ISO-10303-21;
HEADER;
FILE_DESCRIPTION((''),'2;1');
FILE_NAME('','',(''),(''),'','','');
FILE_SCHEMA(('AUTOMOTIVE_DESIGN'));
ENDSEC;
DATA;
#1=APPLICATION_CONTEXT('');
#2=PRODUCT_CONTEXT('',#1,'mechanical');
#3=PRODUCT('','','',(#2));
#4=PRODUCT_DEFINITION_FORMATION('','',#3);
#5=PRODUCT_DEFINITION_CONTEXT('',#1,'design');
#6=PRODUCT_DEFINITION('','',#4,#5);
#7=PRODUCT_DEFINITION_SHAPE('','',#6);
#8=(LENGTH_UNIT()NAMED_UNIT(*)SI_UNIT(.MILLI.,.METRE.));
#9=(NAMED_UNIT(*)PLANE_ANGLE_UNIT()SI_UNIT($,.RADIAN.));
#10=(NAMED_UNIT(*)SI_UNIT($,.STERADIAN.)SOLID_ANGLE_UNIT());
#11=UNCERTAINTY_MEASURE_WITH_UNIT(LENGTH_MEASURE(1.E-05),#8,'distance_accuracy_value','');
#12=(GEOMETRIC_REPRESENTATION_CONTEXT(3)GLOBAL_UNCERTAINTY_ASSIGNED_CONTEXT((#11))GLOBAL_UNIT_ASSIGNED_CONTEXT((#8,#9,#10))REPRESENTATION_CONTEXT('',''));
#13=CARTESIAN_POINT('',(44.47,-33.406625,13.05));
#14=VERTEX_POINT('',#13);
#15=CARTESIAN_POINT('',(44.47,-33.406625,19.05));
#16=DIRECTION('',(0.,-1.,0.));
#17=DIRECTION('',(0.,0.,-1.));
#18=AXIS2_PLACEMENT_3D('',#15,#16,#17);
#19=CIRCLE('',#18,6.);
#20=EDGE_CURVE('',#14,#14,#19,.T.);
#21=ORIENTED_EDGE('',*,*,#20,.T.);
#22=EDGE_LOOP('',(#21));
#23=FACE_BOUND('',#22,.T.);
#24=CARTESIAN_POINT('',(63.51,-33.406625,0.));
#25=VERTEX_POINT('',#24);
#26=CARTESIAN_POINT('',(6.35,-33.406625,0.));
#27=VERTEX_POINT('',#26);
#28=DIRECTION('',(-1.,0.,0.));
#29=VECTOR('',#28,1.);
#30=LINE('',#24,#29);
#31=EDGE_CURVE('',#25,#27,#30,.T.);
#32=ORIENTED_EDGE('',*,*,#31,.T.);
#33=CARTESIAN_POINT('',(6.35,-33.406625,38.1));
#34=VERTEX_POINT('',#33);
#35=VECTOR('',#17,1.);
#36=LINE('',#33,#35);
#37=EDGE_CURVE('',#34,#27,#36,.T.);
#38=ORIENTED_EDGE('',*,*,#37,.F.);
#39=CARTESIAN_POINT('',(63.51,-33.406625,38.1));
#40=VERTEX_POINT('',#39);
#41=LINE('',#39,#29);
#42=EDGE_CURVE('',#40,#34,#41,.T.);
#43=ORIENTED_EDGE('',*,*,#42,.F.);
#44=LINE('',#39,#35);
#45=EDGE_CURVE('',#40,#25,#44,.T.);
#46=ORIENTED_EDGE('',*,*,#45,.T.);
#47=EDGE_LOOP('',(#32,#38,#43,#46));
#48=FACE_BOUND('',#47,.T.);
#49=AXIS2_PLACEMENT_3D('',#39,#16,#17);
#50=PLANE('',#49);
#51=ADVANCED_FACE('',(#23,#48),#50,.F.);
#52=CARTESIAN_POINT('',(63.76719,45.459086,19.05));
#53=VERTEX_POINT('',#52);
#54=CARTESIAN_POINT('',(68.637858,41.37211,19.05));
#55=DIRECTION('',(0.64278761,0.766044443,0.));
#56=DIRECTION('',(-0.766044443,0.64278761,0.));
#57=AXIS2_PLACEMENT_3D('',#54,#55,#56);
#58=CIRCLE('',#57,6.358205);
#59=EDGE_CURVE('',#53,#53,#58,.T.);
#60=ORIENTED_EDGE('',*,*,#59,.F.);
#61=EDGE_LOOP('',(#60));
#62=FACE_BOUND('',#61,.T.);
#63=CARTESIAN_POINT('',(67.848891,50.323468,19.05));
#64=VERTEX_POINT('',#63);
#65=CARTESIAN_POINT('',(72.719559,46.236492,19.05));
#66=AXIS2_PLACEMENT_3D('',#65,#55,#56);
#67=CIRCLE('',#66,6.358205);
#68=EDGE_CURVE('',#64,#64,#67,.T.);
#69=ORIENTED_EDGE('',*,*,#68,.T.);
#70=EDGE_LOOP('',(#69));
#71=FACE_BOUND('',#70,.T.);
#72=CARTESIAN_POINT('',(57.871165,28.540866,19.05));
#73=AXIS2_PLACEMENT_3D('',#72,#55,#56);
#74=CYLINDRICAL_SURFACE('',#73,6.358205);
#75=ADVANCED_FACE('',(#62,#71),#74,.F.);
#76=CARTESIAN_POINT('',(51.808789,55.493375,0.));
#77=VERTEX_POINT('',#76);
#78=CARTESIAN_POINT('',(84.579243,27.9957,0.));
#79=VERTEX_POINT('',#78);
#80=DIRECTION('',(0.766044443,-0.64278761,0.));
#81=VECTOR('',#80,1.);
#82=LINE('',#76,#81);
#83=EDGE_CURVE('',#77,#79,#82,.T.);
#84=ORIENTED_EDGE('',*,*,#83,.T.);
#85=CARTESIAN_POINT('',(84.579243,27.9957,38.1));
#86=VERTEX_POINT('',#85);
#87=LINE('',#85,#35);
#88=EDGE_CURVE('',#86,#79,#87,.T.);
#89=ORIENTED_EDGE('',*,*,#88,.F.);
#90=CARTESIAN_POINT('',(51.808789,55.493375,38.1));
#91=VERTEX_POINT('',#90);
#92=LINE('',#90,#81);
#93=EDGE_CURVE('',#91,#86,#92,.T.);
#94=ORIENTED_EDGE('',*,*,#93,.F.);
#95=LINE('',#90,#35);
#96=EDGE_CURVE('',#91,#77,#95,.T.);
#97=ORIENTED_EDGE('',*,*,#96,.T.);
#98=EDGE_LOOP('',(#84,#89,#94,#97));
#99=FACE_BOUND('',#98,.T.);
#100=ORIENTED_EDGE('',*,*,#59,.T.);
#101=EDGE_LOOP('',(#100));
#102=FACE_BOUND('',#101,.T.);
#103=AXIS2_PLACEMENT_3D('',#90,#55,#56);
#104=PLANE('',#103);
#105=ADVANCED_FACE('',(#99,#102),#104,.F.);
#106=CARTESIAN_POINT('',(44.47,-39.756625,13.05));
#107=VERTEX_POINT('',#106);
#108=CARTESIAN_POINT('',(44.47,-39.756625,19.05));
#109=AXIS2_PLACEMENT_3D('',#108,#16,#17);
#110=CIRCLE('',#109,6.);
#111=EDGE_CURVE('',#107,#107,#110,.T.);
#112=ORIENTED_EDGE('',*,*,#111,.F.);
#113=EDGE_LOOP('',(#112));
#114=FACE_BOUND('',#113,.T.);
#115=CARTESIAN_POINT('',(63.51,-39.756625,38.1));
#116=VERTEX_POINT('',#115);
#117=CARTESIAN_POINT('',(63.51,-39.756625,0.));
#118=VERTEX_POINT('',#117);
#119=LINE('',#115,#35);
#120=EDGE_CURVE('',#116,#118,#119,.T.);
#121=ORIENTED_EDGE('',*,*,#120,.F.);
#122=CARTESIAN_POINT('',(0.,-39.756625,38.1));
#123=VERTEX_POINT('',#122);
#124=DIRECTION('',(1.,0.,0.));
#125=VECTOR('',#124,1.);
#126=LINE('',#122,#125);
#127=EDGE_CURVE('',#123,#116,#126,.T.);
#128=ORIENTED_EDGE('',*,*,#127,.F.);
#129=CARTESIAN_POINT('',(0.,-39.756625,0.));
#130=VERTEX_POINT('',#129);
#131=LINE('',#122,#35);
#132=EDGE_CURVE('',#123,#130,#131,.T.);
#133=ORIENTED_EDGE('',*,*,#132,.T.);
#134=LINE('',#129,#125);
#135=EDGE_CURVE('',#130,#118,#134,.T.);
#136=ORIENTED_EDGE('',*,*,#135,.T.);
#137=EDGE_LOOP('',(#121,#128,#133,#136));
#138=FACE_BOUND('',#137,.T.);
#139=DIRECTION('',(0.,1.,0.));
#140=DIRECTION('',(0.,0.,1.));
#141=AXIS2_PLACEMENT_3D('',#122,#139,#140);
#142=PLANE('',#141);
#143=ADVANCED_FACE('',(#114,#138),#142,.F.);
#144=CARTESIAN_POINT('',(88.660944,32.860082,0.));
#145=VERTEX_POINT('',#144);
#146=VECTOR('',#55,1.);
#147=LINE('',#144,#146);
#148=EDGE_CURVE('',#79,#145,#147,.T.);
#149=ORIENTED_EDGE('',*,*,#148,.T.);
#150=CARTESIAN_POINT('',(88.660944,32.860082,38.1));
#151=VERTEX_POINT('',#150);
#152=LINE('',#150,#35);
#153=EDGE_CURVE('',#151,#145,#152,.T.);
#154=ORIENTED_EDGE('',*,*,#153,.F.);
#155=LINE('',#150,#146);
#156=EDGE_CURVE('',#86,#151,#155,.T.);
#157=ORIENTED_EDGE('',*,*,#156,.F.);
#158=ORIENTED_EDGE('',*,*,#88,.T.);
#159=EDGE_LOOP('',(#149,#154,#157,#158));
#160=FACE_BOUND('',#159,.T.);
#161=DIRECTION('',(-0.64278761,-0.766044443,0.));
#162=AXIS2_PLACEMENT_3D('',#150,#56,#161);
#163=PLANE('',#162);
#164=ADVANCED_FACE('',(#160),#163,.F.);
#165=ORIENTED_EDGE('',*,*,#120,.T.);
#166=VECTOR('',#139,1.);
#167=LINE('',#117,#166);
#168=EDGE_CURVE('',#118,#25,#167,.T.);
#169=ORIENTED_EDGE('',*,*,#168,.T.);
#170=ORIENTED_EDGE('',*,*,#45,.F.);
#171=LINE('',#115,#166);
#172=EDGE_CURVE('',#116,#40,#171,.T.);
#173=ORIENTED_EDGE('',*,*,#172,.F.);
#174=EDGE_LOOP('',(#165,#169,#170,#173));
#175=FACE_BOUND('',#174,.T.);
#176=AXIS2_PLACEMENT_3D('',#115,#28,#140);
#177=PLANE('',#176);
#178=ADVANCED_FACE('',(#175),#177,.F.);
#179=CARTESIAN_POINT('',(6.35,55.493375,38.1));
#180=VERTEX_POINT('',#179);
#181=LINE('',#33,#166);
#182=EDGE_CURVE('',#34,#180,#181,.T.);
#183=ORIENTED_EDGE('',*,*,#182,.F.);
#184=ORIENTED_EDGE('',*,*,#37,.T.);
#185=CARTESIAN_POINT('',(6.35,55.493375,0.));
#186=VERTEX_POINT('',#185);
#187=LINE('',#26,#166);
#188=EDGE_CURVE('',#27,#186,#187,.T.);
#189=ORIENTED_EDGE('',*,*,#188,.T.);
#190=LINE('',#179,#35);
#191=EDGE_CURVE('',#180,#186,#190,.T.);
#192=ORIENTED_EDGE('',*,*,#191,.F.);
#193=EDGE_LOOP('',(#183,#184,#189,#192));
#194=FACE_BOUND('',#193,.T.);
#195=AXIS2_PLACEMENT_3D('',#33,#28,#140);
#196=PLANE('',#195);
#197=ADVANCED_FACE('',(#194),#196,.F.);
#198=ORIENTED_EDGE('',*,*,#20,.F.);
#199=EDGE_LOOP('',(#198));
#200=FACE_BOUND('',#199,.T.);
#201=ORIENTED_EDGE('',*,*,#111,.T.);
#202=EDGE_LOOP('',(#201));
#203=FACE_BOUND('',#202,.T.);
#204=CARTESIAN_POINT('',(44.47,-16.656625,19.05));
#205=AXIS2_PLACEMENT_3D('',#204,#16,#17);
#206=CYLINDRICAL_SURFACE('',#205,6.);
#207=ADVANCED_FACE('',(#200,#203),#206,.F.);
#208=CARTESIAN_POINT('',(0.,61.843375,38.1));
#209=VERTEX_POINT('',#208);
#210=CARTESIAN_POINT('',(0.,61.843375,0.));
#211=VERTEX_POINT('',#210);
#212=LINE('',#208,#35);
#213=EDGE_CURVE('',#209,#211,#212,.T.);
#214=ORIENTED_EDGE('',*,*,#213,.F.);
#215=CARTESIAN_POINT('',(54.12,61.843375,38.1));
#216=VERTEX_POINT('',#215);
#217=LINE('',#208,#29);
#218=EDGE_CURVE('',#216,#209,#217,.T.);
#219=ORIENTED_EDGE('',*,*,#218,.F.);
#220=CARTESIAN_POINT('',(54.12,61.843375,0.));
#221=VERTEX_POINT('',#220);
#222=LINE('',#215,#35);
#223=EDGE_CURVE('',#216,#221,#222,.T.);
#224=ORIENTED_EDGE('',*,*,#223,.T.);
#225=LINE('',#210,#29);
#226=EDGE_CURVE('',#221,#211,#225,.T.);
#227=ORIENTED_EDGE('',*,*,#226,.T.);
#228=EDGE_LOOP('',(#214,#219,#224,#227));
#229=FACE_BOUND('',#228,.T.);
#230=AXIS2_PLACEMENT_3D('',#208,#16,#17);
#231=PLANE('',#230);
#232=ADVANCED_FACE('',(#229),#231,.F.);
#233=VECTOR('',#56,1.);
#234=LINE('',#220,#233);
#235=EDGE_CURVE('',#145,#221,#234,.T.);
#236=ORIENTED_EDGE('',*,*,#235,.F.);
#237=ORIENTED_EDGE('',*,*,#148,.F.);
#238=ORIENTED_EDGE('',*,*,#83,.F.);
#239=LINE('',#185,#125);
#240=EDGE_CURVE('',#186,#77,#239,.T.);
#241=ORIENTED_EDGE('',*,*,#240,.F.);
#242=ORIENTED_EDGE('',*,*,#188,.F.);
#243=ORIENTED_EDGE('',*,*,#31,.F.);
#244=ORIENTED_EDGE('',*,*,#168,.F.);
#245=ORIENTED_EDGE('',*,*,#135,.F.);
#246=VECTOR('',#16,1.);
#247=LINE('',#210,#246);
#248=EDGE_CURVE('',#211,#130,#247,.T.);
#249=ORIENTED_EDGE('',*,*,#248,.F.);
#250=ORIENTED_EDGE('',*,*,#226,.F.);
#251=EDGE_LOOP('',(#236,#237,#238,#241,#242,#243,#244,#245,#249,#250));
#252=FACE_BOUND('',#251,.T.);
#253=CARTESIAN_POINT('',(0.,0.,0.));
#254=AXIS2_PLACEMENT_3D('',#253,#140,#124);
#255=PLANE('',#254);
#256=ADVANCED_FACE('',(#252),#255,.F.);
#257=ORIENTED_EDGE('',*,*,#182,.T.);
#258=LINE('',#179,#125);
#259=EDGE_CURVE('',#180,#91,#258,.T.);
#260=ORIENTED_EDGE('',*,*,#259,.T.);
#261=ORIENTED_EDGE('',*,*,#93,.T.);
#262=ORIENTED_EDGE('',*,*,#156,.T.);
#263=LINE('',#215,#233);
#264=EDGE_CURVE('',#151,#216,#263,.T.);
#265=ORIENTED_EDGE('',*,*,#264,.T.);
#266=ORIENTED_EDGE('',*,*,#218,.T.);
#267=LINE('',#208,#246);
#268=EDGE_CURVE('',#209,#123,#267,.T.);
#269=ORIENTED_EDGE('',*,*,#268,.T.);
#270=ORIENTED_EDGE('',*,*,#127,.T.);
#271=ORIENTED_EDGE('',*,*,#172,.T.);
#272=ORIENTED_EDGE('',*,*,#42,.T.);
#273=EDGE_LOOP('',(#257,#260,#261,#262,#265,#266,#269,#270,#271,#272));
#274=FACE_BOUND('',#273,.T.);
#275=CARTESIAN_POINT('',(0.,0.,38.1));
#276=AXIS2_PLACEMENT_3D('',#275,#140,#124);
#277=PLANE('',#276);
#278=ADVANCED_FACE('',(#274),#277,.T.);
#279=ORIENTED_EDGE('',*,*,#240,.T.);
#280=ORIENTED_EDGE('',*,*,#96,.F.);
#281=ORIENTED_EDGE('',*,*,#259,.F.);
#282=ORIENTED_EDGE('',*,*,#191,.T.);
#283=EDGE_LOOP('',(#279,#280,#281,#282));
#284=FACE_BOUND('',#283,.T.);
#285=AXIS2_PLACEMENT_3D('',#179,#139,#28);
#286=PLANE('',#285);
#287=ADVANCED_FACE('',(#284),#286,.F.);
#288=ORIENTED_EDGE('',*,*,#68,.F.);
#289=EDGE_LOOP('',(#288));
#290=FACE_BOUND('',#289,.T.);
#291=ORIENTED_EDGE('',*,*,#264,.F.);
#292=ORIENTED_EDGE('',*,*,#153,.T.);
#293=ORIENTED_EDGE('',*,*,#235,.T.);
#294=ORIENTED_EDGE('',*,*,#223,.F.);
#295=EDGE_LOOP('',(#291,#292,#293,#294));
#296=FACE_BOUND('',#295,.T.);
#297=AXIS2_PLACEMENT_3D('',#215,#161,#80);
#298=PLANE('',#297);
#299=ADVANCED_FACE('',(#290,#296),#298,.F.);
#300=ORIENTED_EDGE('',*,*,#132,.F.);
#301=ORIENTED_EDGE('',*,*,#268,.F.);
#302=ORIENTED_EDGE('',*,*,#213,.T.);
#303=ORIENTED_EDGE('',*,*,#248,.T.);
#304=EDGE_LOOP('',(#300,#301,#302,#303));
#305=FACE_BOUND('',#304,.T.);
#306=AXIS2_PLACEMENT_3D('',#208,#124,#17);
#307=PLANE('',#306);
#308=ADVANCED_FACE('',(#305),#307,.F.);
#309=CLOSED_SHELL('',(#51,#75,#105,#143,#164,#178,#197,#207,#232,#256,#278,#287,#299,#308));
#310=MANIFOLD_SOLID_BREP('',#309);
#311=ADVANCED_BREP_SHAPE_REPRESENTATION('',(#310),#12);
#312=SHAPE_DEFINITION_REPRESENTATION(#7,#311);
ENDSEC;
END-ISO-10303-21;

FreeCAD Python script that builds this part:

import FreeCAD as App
import Part
import Sketcher
from FreeCAD import Vector
Q = App.Units.Quantity


def add_polygon(sketch, points):
    """Adds a closed chain of lines whose ends are joined by coincident constraints."""
    first, n = sketch.GeometryCount, len(points)
    for a, b in zip(points, points[1:] + points[:1]):
        sketch.addGeometry(Part.LineSegment(App.Vector(*a, 0), App.Vector(*b, 0)), False)
    for i in range(n):
        sketch.addConstraint(Sketcher.Constraint("Coincident", first + i, 2, first + (i + 1) % n, 1))

doc = App.newDocument("Part")
body = doc.addObject("PartDesign::Body", "Body")

sketch1 = body.newObject("Sketcher::SketchObject", "Sketch")
sketch1.AttachmentSupport = (doc.getObject("XY_Plane"), [""])
sketch1.MapMode = "FlatFace"
add_polygon(sketch1, [(0, -40), (64, -40), (64, -33), (6, -33), (6, 55), (52, 55), (85, 28), (89, 33), (54, 62), (0, 62)])
sketch1.addConstraint(Sketcher.Constraint("Horizontal", 0))
sketch1.addConstraint(Sketcher.Constraint("Vertical", 1))
sketch1.addConstraint(Sketcher.Constraint("Horizontal", 2))
sketch1.addConstraint(Sketcher.Constraint("Vertical", 3))
sketch1.addConstraint(Sketcher.Constraint("Horizontal", 4))
sketch1.addConstraint(Sketcher.Constraint("Horizontal", 8))
sketch1.addConstraint(Sketcher.Constraint("Vertical", 9))
sketch1.addConstraint(Sketcher.Constraint("PointOnObject", 8, 2, -2))
sketch1.addConstraint(Sketcher.Constraint("Perpendicular", 5, 6))
sketch1.addConstraint(Sketcher.Constraint("Perpendicular", 6, 7))
sketch1.addConstraint(Sketcher.Constraint("DistanceY", 9, 2, 9, 1, Q("4 in")))
sketch1.addConstraint(Sketcher.Constraint("DistanceY", 3, 1, 3, 2, Q("3.5 in")))
sketch1.addConstraint(Sketcher.Constraint("Angle", 5, Q("-40 deg")))
sketch1.addConstraint(Sketcher.Constraint("DistanceY", 1, 1, 1, 2, Q("0.25 in")))
sketch1.addConstraint(Sketcher.Constraint("Distance", 6, Q("0.25 in")))
sketch1.addConstraint(Sketcher.Constraint("DistanceX", -1, 1, 2, 2, Q("0.25 in")))
sketch1.addConstraint(Sketcher.Constraint("DistanceX", 0, 1, 0, 2, Q("63.51 mm")))
sketch1.addConstraint(Sketcher.Constraint("DistanceX", 8, 2, 8, 1, Q("54.12 mm")))
sketch1.addConstraint(Sketcher.Constraint("Distance", 7, Q("45.09 mm")))
sketch1.addConstraint(Sketcher.Constraint("DistanceY", -1, 1, 5, 2, Q("27.9957 mm")))
pad1 = body.newObject("PartDesign::Pad", "Pad")
pad1.Profile = sketch1
pad1.Length = Q("1.5 in")

sketch2 = body.newObject("Sketcher::SketchObject", "Sketch001")
sketch2.AttachmentSupport = (doc.getObject("XZ_Plane"), [""])
sketch2.MapMode = "FlatFace"
sketch2.AttachmentOffset = App.Placement(Vector(0, 0, 39.756625), App.Rotation())
sketch2.addGeometry(Part.Circle(Vector(44, 19, 0), Vector(0, 0, 1), 6), False)
sketch2.addConstraint(Sketcher.Constraint("Diameter", 0, Q("12 mm")))
sketch2.addConstraint(Sketcher.Constraint("DistanceY", -1, 1, 0, 3, Q("0.75 in")))
sketch2.addConstraint(Sketcher.Constraint("DistanceX", -1, 1, 0, 3, Q("44.47 mm")))
pocket1 = body.newObject("PartDesign::Pocket", "Pocket")
pocket1.Profile = sketch2
pocket1.Length = 23.1

sketch3 = body.newObject("Sketcher::SketchObject", "Sketch002")
sketch3.Placement = App.Placement(Vector(52.812998, 62.94008, 0), App.Rotation(Vector(0.766044443, -0.64278761, 0), Vector(0, 0, -1), Vector(0.64278761, 0.766044443, 0), "ZXY"))
sketch3.addGeometry(Part.Circle(Vector(26, -19, 0), Vector(0, 0, 1), 6), False)
sketch3.addConstraint(Sketcher.Constraint("DistanceY", 0, 3, -1, 1, Q("0.75 in")))
sketch3.addConstraint(Sketcher.Constraint("Diameter", 0, Q("12.716411 mm")))
sketch3.addConstraint(Sketcher.Constraint("DistanceX", -1, 1, 0, 3, Q("25.98617 mm")))
pocket2 = body.newObject("PartDesign::Pocket", "Pocket001")
pocket2.Profile = sketch3
pocket2.Length = 23.1

doc.recompute()
